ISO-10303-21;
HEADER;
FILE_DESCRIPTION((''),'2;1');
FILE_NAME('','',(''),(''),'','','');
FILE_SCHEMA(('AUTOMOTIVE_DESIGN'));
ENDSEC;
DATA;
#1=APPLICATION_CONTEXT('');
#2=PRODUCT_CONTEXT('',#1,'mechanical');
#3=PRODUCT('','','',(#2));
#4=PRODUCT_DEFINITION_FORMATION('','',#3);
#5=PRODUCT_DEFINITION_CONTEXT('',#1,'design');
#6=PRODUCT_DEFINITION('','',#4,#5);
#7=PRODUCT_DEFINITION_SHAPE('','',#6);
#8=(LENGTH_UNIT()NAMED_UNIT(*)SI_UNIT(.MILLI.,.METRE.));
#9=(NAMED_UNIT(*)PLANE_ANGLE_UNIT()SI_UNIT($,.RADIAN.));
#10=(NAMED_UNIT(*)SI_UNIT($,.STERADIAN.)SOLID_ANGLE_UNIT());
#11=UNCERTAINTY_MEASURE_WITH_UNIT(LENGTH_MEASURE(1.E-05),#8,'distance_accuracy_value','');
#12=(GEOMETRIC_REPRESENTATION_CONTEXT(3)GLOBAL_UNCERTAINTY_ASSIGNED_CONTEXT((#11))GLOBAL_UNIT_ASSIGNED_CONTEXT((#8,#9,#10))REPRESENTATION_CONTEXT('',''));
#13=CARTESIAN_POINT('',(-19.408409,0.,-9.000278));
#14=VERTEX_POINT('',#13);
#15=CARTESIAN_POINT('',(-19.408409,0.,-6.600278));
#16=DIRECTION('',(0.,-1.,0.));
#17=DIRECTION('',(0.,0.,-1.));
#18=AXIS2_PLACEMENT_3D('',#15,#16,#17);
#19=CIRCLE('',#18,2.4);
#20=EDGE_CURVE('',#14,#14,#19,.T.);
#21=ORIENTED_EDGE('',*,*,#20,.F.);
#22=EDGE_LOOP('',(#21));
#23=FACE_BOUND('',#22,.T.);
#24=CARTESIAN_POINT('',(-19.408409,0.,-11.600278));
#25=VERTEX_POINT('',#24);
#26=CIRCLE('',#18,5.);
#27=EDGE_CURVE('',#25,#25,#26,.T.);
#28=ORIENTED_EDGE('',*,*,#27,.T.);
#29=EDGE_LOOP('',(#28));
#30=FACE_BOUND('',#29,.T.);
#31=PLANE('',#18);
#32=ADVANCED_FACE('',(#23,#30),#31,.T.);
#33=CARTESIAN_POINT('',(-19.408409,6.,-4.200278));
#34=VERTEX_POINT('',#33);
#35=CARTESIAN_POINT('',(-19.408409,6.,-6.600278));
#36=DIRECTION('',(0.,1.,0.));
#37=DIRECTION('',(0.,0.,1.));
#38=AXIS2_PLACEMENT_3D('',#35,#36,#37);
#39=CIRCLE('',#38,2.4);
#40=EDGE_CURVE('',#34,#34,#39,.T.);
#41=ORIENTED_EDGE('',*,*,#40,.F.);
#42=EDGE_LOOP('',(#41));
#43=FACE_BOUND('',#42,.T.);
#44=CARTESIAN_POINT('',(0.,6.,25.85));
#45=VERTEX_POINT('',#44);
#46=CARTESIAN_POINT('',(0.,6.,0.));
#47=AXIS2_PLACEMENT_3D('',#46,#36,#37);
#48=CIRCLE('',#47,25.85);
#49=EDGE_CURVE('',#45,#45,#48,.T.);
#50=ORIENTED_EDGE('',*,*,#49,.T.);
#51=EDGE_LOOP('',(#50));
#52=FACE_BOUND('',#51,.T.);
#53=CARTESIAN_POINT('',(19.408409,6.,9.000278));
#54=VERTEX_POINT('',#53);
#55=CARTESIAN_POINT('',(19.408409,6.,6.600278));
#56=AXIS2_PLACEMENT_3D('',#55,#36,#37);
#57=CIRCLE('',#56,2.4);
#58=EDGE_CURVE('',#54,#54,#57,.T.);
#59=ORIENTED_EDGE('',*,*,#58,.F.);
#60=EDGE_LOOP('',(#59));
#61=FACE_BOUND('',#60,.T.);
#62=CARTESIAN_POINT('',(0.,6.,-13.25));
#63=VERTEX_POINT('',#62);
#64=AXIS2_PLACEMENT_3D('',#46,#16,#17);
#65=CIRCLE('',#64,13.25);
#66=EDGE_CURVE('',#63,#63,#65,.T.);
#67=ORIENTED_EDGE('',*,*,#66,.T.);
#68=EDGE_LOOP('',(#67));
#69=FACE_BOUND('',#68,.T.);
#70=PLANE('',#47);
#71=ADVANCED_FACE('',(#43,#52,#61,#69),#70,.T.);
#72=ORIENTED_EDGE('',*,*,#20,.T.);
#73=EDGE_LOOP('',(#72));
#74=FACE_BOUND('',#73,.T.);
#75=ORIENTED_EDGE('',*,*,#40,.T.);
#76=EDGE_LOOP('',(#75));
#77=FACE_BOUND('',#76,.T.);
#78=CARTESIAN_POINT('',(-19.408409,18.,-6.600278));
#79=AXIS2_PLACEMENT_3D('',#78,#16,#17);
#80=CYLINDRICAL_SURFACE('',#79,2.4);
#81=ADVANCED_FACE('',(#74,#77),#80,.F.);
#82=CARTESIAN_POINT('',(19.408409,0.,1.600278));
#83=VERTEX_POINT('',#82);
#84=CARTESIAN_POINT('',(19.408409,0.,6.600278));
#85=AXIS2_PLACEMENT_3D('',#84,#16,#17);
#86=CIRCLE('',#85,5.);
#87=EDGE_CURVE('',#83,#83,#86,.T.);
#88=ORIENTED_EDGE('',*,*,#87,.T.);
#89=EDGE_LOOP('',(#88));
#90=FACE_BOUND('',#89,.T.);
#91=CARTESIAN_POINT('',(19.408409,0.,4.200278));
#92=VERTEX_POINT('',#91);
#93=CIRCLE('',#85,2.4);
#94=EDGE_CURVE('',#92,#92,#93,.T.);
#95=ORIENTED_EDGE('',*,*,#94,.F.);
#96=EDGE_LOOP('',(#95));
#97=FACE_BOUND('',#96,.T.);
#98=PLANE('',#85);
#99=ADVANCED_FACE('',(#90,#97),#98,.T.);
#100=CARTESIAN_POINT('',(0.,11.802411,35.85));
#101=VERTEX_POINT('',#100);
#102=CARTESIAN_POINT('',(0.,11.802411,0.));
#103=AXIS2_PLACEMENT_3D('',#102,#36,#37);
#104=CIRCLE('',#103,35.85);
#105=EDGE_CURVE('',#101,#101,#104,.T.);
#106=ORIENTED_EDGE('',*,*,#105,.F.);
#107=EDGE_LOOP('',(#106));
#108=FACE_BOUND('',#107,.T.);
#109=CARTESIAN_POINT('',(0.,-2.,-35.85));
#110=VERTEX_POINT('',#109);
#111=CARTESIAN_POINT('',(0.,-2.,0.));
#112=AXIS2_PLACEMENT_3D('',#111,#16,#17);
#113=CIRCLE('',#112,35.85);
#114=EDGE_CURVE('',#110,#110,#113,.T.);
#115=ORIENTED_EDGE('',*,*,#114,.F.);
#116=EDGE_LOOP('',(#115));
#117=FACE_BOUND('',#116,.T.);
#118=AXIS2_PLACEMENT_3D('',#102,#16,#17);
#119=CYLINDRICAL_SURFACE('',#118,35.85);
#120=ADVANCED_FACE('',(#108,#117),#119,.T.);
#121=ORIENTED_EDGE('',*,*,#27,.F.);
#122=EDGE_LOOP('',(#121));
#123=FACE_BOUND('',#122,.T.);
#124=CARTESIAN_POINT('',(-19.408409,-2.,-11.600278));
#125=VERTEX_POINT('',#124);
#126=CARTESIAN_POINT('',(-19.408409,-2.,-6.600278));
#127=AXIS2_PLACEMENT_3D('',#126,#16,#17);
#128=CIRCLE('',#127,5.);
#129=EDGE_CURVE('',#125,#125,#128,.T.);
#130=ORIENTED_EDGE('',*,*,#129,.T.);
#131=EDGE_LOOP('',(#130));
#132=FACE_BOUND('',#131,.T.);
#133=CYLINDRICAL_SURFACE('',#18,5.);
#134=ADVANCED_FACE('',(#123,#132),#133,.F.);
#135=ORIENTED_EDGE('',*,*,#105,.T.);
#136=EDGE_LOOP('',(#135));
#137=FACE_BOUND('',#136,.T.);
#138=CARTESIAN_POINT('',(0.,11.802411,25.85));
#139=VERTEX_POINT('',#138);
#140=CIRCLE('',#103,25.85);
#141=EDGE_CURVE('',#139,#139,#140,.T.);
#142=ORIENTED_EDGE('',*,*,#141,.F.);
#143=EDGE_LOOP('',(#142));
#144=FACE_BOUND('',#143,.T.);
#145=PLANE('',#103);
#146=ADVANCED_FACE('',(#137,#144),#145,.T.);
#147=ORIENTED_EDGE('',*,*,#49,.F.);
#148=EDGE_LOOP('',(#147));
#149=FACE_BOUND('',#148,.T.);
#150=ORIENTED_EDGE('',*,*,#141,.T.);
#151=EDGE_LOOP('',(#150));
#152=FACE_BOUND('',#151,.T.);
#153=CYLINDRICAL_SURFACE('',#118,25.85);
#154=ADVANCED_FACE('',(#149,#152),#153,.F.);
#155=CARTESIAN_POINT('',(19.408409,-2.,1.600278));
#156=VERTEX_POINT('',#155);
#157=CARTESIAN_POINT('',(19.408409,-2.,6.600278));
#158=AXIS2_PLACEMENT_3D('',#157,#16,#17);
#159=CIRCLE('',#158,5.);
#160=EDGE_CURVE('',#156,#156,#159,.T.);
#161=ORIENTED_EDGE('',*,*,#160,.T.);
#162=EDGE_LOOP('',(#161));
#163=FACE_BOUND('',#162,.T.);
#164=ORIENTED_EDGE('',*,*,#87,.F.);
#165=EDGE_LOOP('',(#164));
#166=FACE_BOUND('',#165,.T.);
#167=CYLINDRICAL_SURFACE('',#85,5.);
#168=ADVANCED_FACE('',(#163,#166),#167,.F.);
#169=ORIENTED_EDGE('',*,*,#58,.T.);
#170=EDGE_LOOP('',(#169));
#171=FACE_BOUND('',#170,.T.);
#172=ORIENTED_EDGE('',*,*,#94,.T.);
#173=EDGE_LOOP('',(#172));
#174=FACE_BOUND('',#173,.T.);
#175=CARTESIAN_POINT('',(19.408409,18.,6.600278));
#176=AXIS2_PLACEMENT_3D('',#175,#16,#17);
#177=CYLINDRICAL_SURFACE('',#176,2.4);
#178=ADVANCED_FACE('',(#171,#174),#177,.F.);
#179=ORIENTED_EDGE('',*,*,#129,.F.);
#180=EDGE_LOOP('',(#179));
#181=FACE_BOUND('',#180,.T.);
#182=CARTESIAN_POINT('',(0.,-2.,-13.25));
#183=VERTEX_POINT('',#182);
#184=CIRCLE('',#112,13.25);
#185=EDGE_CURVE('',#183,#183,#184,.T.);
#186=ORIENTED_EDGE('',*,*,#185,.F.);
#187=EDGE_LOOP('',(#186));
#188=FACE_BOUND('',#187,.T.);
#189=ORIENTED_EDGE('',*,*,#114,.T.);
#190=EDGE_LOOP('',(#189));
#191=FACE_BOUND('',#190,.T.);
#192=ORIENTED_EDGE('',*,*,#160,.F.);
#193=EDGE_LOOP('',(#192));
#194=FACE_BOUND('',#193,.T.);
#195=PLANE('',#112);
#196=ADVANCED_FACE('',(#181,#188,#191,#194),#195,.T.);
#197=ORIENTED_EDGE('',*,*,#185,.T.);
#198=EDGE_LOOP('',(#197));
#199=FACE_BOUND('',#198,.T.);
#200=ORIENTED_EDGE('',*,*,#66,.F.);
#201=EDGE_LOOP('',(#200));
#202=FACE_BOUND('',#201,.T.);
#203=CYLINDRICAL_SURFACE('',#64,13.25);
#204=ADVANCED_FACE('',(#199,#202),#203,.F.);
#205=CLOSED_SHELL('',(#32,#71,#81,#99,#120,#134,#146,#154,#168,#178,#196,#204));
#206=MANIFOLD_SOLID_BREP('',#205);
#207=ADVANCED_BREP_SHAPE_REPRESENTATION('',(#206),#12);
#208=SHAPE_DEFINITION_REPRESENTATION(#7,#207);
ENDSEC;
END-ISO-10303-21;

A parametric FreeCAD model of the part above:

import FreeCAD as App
import Part
import Sketcher
from FreeCAD import Vector


def faces_at(feature, points):
    """Names of the faces that lie closest to the given points."""
    faces = feature.Shape.Faces
    near = lambda p: min(range(len(faces)), key=lambda i: faces[i].distToShape(Part.Vertex(*p))[0])
    return sorted({f"Face{near(p) + 1}" for p in points})

doc = App.newDocument("Part")
body = doc.addObject("PartDesign::Body", "Body")

# Sketch on XZ plane
sketch1 = doc.addObject("Sketcher::SketchObject", "Sketch")
body.addObject(sketch1)
sketch1.AttachmentSupport = (doc.XZ_Plane, [""])
sketch1.MapMode = "FlatFace"
sketch1.addGeometry(Part.Circle(Vector(0, 0, 0), Vector(0, 0, 1), 36), False)
sketch1.addConstraint([
    Sketcher.Constraint("Coincident", 0, 3, -1, 1),
    Sketcher.Constraint("Diameter", 0, 71.7),
])
pad1 = doc.addObject("PartDesign::Pad", "Pad")
body.addObject(pad1)
pad1.Profile = sketch1
pad1.Length = 11.802411
pad1.Reversed = True

# Sketch on XZ plane
sketch2 = doc.addObject("Sketcher::SketchObject", "Sketch001")
body.addObject(sketch2)
sketch2.AttachmentSupport = (doc.XZ_Plane, [""])
sketch2.MapMode = "FlatFace"
sketch2.addGeometry(Part.Circle(Vector(0, 0, 0), Vector(0, 0, 1), 13), False)
sketch2.addConstraint([
    Sketcher.Constraint("Coincident", 0, 3, -1, 1),
    Sketcher.Constraint("Diameter", 0, 26.5),
])
pocket1 = doc.addObject("PartDesign::Pocket", "Pocket")
body.addObject(pocket1)
pocket1.Profile = sketch2
pocket1.Length = 6
doc.recompute()

thickness = doc.addObject("PartDesign::Thickness", "Thickness")
body.addObject(thickness)
thickness.Base = (pocket1, faces_at(pocket1, [(0, 11.802, 0)]))
thickness.Value = 10
thickness.Reversed = True
thickness.Join = "Intersection"

# Sketch on XZ plane
sketch3 = doc.addObject("Sketcher::SketchObject", "Sketch002")
body.addObject(sketch3)
sketch3.AttachmentSupport = (doc.XZ_Plane, [""])
sketch3.MapMode = "FlatFace"
sketch3.AttachmentOffset = App.Placement(Vector(0, 0, -10), App.Rotation())
sketch3.addGeometry(Part.Circle(Vector(0, 0, 0), Vector(0, 0, 1), 23), False)
sketch3.addConstraint([
    Sketcher.Constraint("Coincident", 0, 3, -1, 1),
    Sketcher.Constraint("Diameter", 0, 46.5),
])
pocket2 = doc.addObject("PartDesign::Pocket", "Pocket001")
body.addObject(pocket2)
pocket2.Profile = sketch3
pocket2.Length = 6

# Sketch on XZ plane
sketch4 = doc.addObject("Sketcher::SketchObject", "Sketch003")
body.addObject(sketch4)
sketch4.AttachmentSupport = (doc.XZ_Plane, [""])
sketch4.MapMode = "FlatFace"
sketch4.AttachmentOffset = App.Placement(Vector(0, 0, -6), App.Rotation())
sketch4.addGeometry(Part.Circle(Vector(0, 0, 0), Vector(0, 0, 1), 26), False)
sketch4.addConstraint([
    Sketcher.Constraint("Coincident", 0, 3, -1, 1),
    Sketcher.Constraint("Diameter", 0, 51.7),
])
pocket3 = doc.addObject("PartDesign::Pocket", "Pocket002")
body.addObject(pocket3)
pocket3.Profile = sketch4
pocket3.Length = 4

# Sketch on XZ plane
sketch5 = doc.addObject("Sketcher::SketchObject", "Sketch004")
body.addObject(sketch5)
sketch5.AttachmentSupport = (doc.XZ_Plane, [""])
sketch5.MapMode = "FlatFace"
sketch5.addGeometry([
    Part.Circle(Vector(-19.4, -6.6, 0), Vector(0, 0, 1), 2.4),
    Part.Circle(Vector(19.4, 6.6, 0), Vector(0, 0, 1), 2.4),
], False)
sketch5.addConstraint([
    Sketcher.Constraint("Equal", 0, 1),
    Sketcher.Constraint("Symmetric", 0, 3, 1, 3, -1, 1),
    Sketcher.Constraint("Diameter", 0, 4.8),
    Sketcher.Constraint("DistanceX", 0, 3, -1, 1, 19.408409),
    Sketcher.Constraint("DistanceY", 0, 3, -1, 1, 6.600278),
])
pocket4 = doc.addObject("PartDesign::Pocket", "Pocket003")
body.addObject(pocket4)
pocket4.Profile = sketch5
pocket4.Length = 18

# Sketch on XZ plane
sketch6 = doc.addObject("Sketcher::SketchObject", "Sketch005")
body.addObject(sketch6)
sketch6.AttachmentSupport = (doc.XZ_Plane, [""])
sketch6.MapMode = "FlatFace"
sketch6.AttachmentOffset = App.Placement(Vector(0, 0, 2), App.Rotation())
sketch6.addGeometry(Part.Circle(Vector(0, 0, 0), Vector(0, 0, 1), 36), False)
sketch6.addConstraint([
    Sketcher.Constraint("Coincident", 0, 3, -1, 1),
    Sketcher.Constraint("Diameter", 0, 71.7),
])
pad2 = doc.addObject("PartDesign::Pad", "Pad001")
body.addObject(pad2)
pad2.Profile = sketch6
pad2.Length = 2
pad2.Reversed = True

# Sketch on XZ plane
sketch7 = doc.addObject("Sketcher::SketchObject", "Sketch006")
body.addObject(sketch7)
sketch7.AttachmentSupport = (doc.XZ_Plane, [""])
sketch7.MapMode = "FlatFace"
sketch7.AttachmentOffset = App.Placement(Vector(0, 0, 2), App.Rotation())
sketch7.addGeometry([
    Part.Circle(Vector(-19, -7, 0), Vector(0, 0, 1), 5),
    Part.Circle(Vector(19, 7, 0), Vector(0, 0, 1), 5),
    Part.Circle(Vector(0, 0, 0), Vector(0, 0, 1), 13),
], False)
sketch7.addConstraint([
    Sketcher.Constraint("Coincident", 2, 3, -1, 1),
    Sketcher.Constraint("Equal", 0, 1),
    Sketcher.Constraint("Symmetric", 0, 3, 1, 3, -1, 1),
    Sketcher.Constraint("Diameter", 0, 10.0),
    Sketcher.Constraint("Diameter", 2, 26.5),
    Sketcher.Constraint("DistanceX", 0, 3, -1, 1, 19.408409),
    Sketcher.Constraint("DistanceY", 0, 3, -1, 1, 6.600278),
])
pocket5 = doc.addObject("PartDesign::Pocket", "Pocket004")
body.addObject(pocket5)
pocket5.Profile = sketch7
pocket5.Length = 2

doc.recompute()
